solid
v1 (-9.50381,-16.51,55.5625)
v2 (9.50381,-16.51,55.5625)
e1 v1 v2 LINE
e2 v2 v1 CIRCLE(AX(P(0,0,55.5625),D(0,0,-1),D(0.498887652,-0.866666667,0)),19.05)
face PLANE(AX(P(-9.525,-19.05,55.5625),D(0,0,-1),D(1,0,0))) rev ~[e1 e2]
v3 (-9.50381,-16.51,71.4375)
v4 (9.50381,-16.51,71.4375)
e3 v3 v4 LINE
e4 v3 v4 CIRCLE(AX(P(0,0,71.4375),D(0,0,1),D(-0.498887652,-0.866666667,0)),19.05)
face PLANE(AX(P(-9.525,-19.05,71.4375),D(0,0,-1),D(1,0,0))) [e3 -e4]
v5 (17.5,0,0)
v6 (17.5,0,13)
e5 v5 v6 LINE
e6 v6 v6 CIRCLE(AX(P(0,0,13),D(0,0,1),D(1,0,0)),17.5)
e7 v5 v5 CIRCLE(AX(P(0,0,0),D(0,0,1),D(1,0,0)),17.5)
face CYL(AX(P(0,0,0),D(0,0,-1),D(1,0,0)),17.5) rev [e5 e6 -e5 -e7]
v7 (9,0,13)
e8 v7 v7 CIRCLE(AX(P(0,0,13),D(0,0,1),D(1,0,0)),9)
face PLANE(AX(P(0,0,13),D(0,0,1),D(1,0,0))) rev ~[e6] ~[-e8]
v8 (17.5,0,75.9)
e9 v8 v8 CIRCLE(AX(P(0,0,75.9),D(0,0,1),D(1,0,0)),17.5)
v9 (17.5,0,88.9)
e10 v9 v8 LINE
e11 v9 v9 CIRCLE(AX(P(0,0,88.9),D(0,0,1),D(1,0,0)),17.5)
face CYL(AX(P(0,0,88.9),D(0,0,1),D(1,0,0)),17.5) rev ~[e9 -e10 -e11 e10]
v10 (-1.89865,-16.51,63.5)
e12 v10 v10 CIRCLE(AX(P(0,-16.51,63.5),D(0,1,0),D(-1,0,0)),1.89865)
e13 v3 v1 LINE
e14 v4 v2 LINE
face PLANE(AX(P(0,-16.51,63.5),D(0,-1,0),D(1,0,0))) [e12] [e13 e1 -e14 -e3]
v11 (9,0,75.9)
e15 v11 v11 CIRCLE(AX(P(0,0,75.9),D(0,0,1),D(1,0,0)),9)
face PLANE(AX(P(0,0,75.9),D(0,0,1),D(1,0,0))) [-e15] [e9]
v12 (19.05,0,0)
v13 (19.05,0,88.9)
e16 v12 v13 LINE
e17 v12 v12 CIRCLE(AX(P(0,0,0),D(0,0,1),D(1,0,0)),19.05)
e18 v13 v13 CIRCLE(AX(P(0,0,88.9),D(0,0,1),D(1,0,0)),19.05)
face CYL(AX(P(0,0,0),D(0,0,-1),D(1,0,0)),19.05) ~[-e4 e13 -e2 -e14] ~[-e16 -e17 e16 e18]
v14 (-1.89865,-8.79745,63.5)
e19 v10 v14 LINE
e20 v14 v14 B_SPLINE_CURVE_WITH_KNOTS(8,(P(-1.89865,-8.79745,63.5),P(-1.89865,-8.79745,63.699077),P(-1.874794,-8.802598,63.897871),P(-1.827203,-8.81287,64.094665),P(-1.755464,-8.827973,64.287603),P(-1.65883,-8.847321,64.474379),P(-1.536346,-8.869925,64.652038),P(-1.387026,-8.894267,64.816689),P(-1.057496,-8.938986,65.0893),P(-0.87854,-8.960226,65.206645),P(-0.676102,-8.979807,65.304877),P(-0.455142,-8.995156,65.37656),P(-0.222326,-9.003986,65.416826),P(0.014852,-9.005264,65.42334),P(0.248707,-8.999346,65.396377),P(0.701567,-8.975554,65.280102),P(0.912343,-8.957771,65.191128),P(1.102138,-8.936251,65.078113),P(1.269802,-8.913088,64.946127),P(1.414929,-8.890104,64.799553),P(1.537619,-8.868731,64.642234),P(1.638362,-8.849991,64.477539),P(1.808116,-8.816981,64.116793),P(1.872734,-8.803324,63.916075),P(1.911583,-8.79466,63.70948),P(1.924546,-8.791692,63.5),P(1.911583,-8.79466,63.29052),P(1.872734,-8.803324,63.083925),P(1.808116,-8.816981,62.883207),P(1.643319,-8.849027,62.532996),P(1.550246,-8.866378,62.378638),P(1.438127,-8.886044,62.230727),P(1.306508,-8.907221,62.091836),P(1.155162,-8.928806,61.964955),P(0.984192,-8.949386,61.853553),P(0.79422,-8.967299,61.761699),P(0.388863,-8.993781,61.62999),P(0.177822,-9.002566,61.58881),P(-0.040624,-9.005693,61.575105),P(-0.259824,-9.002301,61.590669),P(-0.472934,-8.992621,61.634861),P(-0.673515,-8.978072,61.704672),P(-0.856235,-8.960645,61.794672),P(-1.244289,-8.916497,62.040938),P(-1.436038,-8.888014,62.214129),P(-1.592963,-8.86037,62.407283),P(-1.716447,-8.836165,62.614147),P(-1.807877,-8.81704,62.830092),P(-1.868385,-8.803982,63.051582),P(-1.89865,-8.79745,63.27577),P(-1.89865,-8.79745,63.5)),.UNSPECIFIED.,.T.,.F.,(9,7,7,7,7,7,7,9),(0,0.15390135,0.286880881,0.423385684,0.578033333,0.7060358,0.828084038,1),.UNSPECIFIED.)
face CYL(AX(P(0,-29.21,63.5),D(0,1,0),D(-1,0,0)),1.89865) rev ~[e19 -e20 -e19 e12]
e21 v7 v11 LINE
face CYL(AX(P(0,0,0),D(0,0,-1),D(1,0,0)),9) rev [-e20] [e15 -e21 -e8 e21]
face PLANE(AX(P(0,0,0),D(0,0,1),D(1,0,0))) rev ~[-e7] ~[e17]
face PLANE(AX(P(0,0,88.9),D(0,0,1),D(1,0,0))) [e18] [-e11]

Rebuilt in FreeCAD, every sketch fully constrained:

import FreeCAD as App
import Part
import Sketcher
from FreeCAD import Vector
Q = App.Units.Quantity


def add_polygon(sketch, points):
    """Adds a closed chain of lines whose ends are joined by coincident constraints."""
    first, n = sketch.GeometryCount, len(points)
    for a, b in zip(points, points[1:] + points[:1]):
        sketch.addGeometry(Part.LineSegment(App.Vector(*a, 0), App.Vector(*b, 0)), False)
    for i in range(n):
        sketch.addConstraint(Sketcher.Constraint("Coincident", first + i, 2, first + (i + 1) % n, 1))

doc = App.newDocument("Part")
body = doc.addObject("PartDesign::Body", "Body")

sketch1 = body.newObject("Sketcher::SketchObject", "Sketch")
sketch1.AttachmentSupport = (doc.getObject("XY_Plane"), [""])
sketch1.MapMode = "FlatFace"
sketch1.addGeometry(Part.Circle(Vector(0, 0, 0), Vector(0, 0, 1), 19), False)
sketch1.addGeometry(Part.Circle(Vector(0, 0, 0), Vector(0, 0, 1), 9), False)
sketch1.addConstraint(Sketcher.Constraint("Coincident", 0, 3, -1, 1))
sketch1.addConstraint(Sketcher.Constraint("Coincident", 1, 3, -1, 1))
sketch1.addConstraint(Sketcher.Constraint("Diameter", 0, Q("1.5 in")))
sketch1.addConstraint(Sketcher.Constraint("Diameter", 1, Q("18 mm")))
pad1 = body.newObject("PartDesign::Pad", "Pad")
pad1.Profile = sketch1
pad1.Length = Q("3.5 in")

sketch2 = body.newObject("Sketcher::SketchObject", "Sketch001")
sketch2.AttachmentSupport = (doc.getObject("XY_Plane"), [""])
sketch2.MapMode = "FlatFace"
sketch2.addGeometry(Part.Circle(Vector(0, 0, 0), Vector(0, 0, 1), 18), False)
sketch2.addGeometry(Part.Circle(Vector(0, 0, 0), Vector(0, 0, 1), 9), False)
sketch2.addConstraint(Sketcher.Constraint("Coincident", 0, 3, -1, 1))
sketch2.addConstraint(Sketcher.Constraint("Coincident", 1, 3, -1, 1))
sketch2.addConstraint(Sketcher.Constraint("Diameter", 0, Q("35 mm")))
sketch2.addConstraint(Sketcher.Constraint("Diameter", 1, Q("18 mm")))
pocket1 = body.newObject("PartDesign::Pocket", "Pocket")
pocket1.Profile = sketch2
pocket1.Length = 13
pocket1.Reversed = True

sketch3 = body.newObject("Sketcher::SketchObject", "Sketch002")
sketch3.AttachmentSupport = (doc.getObject("XY_Plane"), [""])
sketch3.MapMode = "FlatFace"
sketch3.AttachmentOffset = App.Placement(Vector(0, 0, 3.5 * 25.4), App.Rotation())
sketch3.addGeometry(Part.Circle(Vector(0, 0, 0), Vector(0, 0, 1), 18), False)
sketch3.addGeometry(Part.Circle(Vector(0, 0, 0), Vector(0, 0, 1), 9), False)
sketch3.addConstraint(Sketcher.Constraint("Coincident", 0, 3, -1, 1))
sketch3.addConstraint(Sketcher.Constraint("Coincident", 1, 3, -1, 1))
sketch3.addConstraint(Sketcher.Constraint("Diameter", 0, Q("35 mm")))
sketch3.addConstraint(Sketcher.Constraint("Diameter", 1, Q("18 mm")))
pocket2 = body.newObject("PartDesign::Pocket", "Pocket001")
pocket2.Profile = sketch3
pocket2.Length = 13

sketch4 = body.newObject("Sketcher::SketchObject", "Sketch003")
sketch4.AttachmentSupport = (doc.getObject("XZ_Plane"), [""])
sketch4.MapMode = "FlatFace"
sketch4.AttachmentOffset = App.Placement(Vector(0, 0, 0.75 * 25.4), App.Rotation())
add_polygon(sketch4, [(-10, 71), (-10, 56), (10, 56), (10, 71)])
sketch4.addConstraint(Sketcher.Constraint("Vertical", 0))
sketch4.addConstraint(Sketcher.Constraint("Horizontal", 1))
sketch4.addConstraint(Sketcher.Constraint("Vertical", 2))
sketch4.addConstraint(Sketcher.Constraint("Horizontal", 3))
sketch4.addConstraint(Sketcher.Constraint("DistanceX", 1, 1, 1, 2, Q("0.75 in")))
sketch4.addConstraint(Sketcher.Constraint("DistanceY", 0, 2, 0, 1, Q("0.625 in")))
sketch4.addConstraint(Sketcher.Constraint("DistanceX", 0, 2, -1, 1, Q("0.375 in")))
sketch4.addConstraint(Sketcher.Constraint("DistanceY", -1, 1, 0, 2, Q("2.1875 in")))
pocket3 = body.newObject("PartDesign::Pocket", "Pocket002")
pocket3.Profile = sketch4
pocket3.Length = Q("0.1 in")

sketch5 = body.newObject("Sketcher::SketchObject", "Sketch004")
sketch5.AttachmentSupport = (doc.getObject("XZ_Plane"), [""])
sketch5.MapMode = "FlatFace"
sketch5.AttachmentOffset = App.Placement(Vector(0, 0, 0.65 * 25.4), App.Rotation())
sketch5.addGeometry(Part.Circle(Vector(0, 63.5, 0), Vector(0, 0, 1), 1.9), False)
sketch5.addConstraint(Sketcher.Constraint("PointOnObject", 0, 3, -2))
sketch5.addConstraint(Sketcher.Constraint("Diameter", 0, Q("0.1495 in")))
sketch5.addConstraint(Sketcher.Constraint("DistanceY", -1, 1, 0, 3, Q("2.5 in")))
doc.recompute()
hole = body.newObject("PartDesign::Hole", "Hole")
hole.Profile = sketch5
hole.ThreadType = "None"
hole.Diameter = Q("0.1495 in")
hole.DepthType = "Dimension"
hole.Depth = Q("0.5 in")
hole.DrillPoint = "Angled"
hole.DrillPointAngle = 118

doc.recompute()
